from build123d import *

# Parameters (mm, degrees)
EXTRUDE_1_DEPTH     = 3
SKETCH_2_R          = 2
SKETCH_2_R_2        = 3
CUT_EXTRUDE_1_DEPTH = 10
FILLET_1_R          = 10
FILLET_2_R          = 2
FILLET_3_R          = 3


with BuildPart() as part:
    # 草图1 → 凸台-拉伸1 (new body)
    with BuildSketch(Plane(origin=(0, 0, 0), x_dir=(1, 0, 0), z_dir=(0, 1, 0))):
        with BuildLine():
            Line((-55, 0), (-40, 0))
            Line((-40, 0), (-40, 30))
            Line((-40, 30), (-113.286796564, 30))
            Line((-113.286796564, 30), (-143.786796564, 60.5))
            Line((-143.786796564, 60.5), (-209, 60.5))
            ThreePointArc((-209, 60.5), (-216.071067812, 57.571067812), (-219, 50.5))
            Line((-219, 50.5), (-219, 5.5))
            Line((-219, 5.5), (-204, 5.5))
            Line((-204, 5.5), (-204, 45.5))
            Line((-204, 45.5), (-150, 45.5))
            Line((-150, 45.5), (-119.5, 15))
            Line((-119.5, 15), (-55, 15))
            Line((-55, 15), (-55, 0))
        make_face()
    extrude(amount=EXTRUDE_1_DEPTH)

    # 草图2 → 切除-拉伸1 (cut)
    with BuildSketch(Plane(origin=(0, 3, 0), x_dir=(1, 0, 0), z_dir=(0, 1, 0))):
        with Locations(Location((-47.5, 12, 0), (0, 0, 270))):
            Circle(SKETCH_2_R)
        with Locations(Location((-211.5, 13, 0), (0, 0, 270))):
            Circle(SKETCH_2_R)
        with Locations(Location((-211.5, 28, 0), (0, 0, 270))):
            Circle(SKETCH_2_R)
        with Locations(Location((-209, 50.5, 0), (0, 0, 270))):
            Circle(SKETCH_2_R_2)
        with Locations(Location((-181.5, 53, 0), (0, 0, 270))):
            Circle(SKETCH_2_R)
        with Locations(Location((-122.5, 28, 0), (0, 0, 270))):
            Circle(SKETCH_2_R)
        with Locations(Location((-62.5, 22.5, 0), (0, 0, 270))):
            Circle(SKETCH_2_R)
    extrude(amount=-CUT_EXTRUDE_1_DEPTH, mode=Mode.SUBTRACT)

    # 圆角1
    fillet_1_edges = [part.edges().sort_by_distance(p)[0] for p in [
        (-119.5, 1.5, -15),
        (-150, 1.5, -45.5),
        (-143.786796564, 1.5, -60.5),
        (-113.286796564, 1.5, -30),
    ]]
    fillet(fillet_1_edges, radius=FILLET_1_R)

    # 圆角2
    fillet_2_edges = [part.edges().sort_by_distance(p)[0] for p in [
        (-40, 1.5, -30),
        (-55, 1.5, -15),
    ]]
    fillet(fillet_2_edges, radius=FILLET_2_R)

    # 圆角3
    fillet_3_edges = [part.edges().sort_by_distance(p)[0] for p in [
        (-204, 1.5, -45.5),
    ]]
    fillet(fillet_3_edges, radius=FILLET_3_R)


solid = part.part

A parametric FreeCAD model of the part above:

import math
import FreeCAD as App
import Part
import Sketcher

V = App.Vector
Q = App.Units.Quantity


def edges_at(feature, points):
    """Names of the edges that pass closest to the given points."""
    edges = feature.Shape.Edges
    near = lambda p: min(range(len(edges)), key=lambda i: edges[i].distToShape(Part.Vertex(*p))[0])
    return sorted({f"Edge{near(p) + 1}" for p in points})

doc = App.newDocument("Part")
body = doc.addObject("PartDesign::Body", "Body")

sketch1 = body.newObject("Sketcher::SketchObject", "Sketch")
sketch1.AttachmentSupport = (doc.getObject("XZ_Plane"), [""])
sketch1.MapMode = "FlatFace"
sketch1.addGeometry([
    Part.LineSegment(V(-55, 0, 0), V(-40, 0, 0)),
    Part.LineSegment(V(-40, 0, 0), V(-40, -30, 0)),
    Part.LineSegment(V(-40, -30, 0), V(-113, -30, 0)),
    Part.LineSegment(V(-113, -30, 0), V(-144, -60, 0)),
    Part.LineSegment(V(-144, -60, 0), V(-209, -60, 0)),
    Part.ArcOfCircle(Part.Circle(V(-209, -50, 0), V(0, 0, 1), 10), math.radians(180), math.radians(270)),
    Part.LineSegment(V(-219, -50, 0), V(-219, -6, 0)),
    Part.LineSegment(V(-219, -6, 0), V(-204, -6, 0)),
    Part.LineSegment(V(-204, -6, 0), V(-204, -46, 0)),
    Part.LineSegment(V(-204, -46, 0), V(-150, -46, 0)),
    Part.LineSegment(V(-150, -46, 0), V(-120, -15, 0)),
    Part.LineSegment(V(-120, -15, 0), V(-55, -15, 0)),
    Part.LineSegment(V(-55, -15, 0), V(-55, 0, 0)),
], False)
sketch1.addConstraint([
    Sketcher.Constraint("Coincident", 0, 2, 1, 1),
    Sketcher.Constraint("Coincident", 1, 2, 2, 1),
    Sketcher.Constraint("Coincident", 2, 2, 3, 1),
    Sketcher.Constraint("Coincident", 3, 2, 4, 1),
    Sketcher.Constraint("Tangent", 4, 2, 5, 2),
    Sketcher.Constraint("Tangent", 5, 1, 6, 1),
    Sketcher.Constraint("Coincident", 6, 2, 7, 1),
    Sketcher.Constraint("Coincident", 7, 2, 8, 1),
    Sketcher.Constraint("Coincident", 8, 2, 9, 1),
    Sketcher.Constraint("Coincident", 9, 2, 10, 1),
    Sketcher.Constraint("Coincident", 10, 2, 11, 1),
    Sketcher.Constraint("Coincident", 11, 2, 12, 1),
    Sketcher.Constraint("Coincident", 12, 2, 0, 1),
    Sketcher.Constraint("Horizontal", 0),
    Sketcher.Constraint("Vertical", 1),
    Sketcher.Constraint("Horizontal", 2),
    Sketcher.Constraint("Horizontal", 4),
    Sketcher.Constraint("Vertical", 6),
    Sketcher.Constraint("Horizontal", 7),
    Sketcher.Constraint("Vertical", 8),
    Sketcher.Constraint("Horizontal", 9),
    Sketcher.Constraint("Horizontal", 11),
    Sketcher.Constraint("Vertical", 12),
    Sketcher.Constraint("PointOnObject", 0, 2, -1),
    Sketcher.Constraint("Parallel", 3, 10),
    Sketcher.Constraint("Equal", 0, 7),
    Sketcher.Constraint("Equal", 7, 12),
    Sketcher.Constraint("Equal", 3, 10),
    Sketcher.Constraint("Radius", 5, Q("10 mm")),
    Sketcher.Constraint("DistanceX", 0, 1, 0, 2, Q("15 mm")),
    Sketcher.Constraint("DistanceX", 9, 1, 9, 2, Q("54 mm")),
    Sketcher.Constraint("DistanceY", 1, 2, 1, 1, Q("30 mm")),
    Sketcher.Constraint("DistanceY", 6, 1, 6, 2, Q("45 mm")),
    Sketcher.Constraint("Angle", 3, Q("-135 deg")),
    Sketcher.Constraint("DistanceX", 11, 1, 11, 2, Q("64.5 mm")),
    Sketcher.Constraint("DistanceX", 5, 3, -1, 1, Q("209 mm")),
    Sketcher.Constraint("DistanceX", 0, 2, -1, 1, Q("40 mm")),
    Sketcher.Constraint("DistanceX", 2, 2, 2, 1, Q("73.286797 mm")),
])
pad1 = body.newObject("PartDesign::Pad", "Pad")
pad1.Profile = sketch1
pad1.Length = 3
pad1.Reversed = True

sketch2 = body.newObject("Sketcher::SketchObject", "Sketch001")
sketch2.AttachmentSupport = (doc.getObject("XZ_Plane"), [""])
sketch2.MapMode = "FlatFace"
sketch2.AttachmentOffset = App.Placement(V(0, 0, -3), App.Rotation())
sketch2.addGeometry([
    Part.Circle(V(-47.5, -12, 0), V(0, 0, 1), 2),
    Part.Circle(V(-211.5, -13, 0), V(0, 0, 1), 2),
    Part.Circle(V(-211.5, -28, 0), V(0, 0, 1), 2),
    Part.Circle(V(-209, -50.5, 0), V(0, 0, 1), 3),
    Part.Circle(V(-181.5, -53, 0), V(0, 0, 1), 2),
    Part.Circle(V(-122.5, -28, 0), V(0, 0, 1), 2),
    Part.Circle(V(-62.5, -22.5, 0), V(0, 0, 1), 2),
], False)
sketch2.addConstraint([
    Sketcher.Constraint("Equal", 0, 1),
    Sketcher.Constraint("Equal", 1, 2),
    Sketcher.Constraint("Equal", 2, 4),
    Sketcher.Constraint("Equal", 4, 5),
    Sketcher.Constraint("Equal", 5, 6),
    Sketcher.Constraint("Horizontal", 2, 3, 5, 3),
    Sketcher.Constraint("Vertical", 1, 3, 2, 3),
    Sketcher.Constraint("Diameter", 0, Q("4 mm")),
    Sketcher.Constraint("Diameter", 3, Q("6 mm")),
    Sketcher.Constraint("DistanceY", 0, 3, -1, 1, Q("12 mm")),
    Sketcher.Constraint("DistanceY", 1, 3, -1, 1, Q("13 mm")),
    Sketcher.Constraint("DistanceY", 2, 3, -1, 1, Q("28 mm")),
    Sketcher.Constraint("DistanceX", 3, 3, -1, 1, Q("209 mm")),
    Sketcher.Constraint("DistanceY", 4, 3, -1, 1, Q("53 mm")),
    Sketcher.Constraint("DistanceX", 1, 3, 0, 3, Q("164 mm")),
    Sketcher.Constraint("DistanceX", 2, 3, 4, 3, Q("30 mm")),
    Sketcher.Constraint("DistanceX", 4, 3, 5, 3, Q("59 mm")),
    Sketcher.Constraint("DistanceX", 6, 3, 0, 3, Q("15 mm")),
    Sketcher.Constraint("DistanceY", 3, 3, 6, 3, Q("28 mm")),
    Sketcher.Constraint("DistanceX", 0, 3, -1, 1, Q("47.5 mm")),
    Sketcher.Constraint("DistanceY", 3, 3, -1, 1, Q("50.5 mm")),
])
pocket1 = body.newObject("PartDesign::Pocket", "Pocket")
pocket1.Profile = sketch2
pocket1.Length = 10
pocket1.Reversed = True
doc.recompute()

fillet = body.newObject("PartDesign::Fillet", "Fillet")
fillet.Base = (pocket1, edges_at(pocket1, [
    (-119.5, 1.5, -15),
    (-150, 1.5, -45.5),
    (-143.787, 1.5, -60.5),
    (-113.287, 1.5, -30),
]))
fillet.Radius = 10
doc.recompute()

fillet2 = body.newObject("PartDesign::Fillet", "Fillet001")
fillet2.Base = (fillet, edges_at(fillet, [(-40, 1.5, -30), (-55, 1.5, -15)]))
fillet2.Radius = 2
doc.recompute()

fillet3 = body.newObject("PartDesign::Fillet", "Fillet002")
fillet3.Base = (fillet2, edges_at(fillet2, [(-204, 1.5, -45.5)]))
fillet3.Radius = 3

doc.recompute()
